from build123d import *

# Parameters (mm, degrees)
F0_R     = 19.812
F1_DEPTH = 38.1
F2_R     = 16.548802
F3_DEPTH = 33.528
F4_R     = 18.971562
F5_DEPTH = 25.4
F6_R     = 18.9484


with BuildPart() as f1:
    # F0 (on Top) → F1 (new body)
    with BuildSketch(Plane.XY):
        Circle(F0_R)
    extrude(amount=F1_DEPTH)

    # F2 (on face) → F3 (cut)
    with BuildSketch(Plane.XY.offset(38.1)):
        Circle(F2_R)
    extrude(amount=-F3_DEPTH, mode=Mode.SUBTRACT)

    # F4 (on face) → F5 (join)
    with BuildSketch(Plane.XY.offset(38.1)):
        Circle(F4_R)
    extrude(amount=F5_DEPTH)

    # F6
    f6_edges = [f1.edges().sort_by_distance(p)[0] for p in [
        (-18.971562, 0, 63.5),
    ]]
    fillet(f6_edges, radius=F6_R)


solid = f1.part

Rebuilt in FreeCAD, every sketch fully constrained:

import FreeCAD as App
import Part
import Sketcher

V = App.Vector
Q = App.Units.Quantity


def edges_at(feature, points):
    """Names of the edges that pass closest to the given points."""
    edges = feature.Shape.Edges
    near = lambda p: min(range(len(edges)), key=lambda i: edges[i].distToShape(Part.Vertex(*p))[0])
    return sorted({f"Edge{near(p) + 1}" for p in points})

doc = App.newDocument("Part")
params = doc.addObject("Spreadsheet::Sheet", "Params")
for row, (alias, value) in enumerate([
    ("sketch1_diameter", "1.56 in"),
    ("pad1_length", "1.5 in"),
    ("pocket1_length", "1.32 in"),
    ("pad2_length", "1 in"),
    ("fillet_radius", "0.746 in"),
], start=1):
    params.set(f"A{row}", alias)
    params.set(f"B{row}", "=" + value)
    params.setAlias(f"B{row}", alias)

body = doc.addObject("PartDesign::Body", "Body")

# Sketch on XY plane
sketch1 = doc.addObject("Sketcher::SketchObject", "Sketch")
body.addObject(sketch1)
sketch1.AttachmentSupport = (doc.XY_Plane, [""])
sketch1.MapMode = "FlatFace"
sketch1.addGeometry(Part.Circle(V(0, 0, 0), V(0, 0, 1), 20), False)
sketch1.addConstraint([
    Sketcher.Constraint("Coincident", 0, 3, -1, 1),
    Sketcher.Constraint("Diameter", 0, Q("1.56 in")),
])
sketch1.setExpression("Constraints[1]", "Params.sketch1_diameter")
pad1 = doc.addObject("PartDesign::Pad", "Pad")
body.addObject(pad1)
pad1.Profile = sketch1
pad1.setExpression("Length", "Params.pad1_length")

# Sketch on XY plane
sketch2 = doc.addObject("Sketcher::SketchObject", "Sketch001")
body.addObject(sketch2)
sketch2.AttachmentSupport = (doc.XY_Plane, [""])
sketch2.MapMode = "FlatFace"
sketch2.AttachmentOffset = App.Placement(V(0, 0, 1.5 * 25.4), App.Rotation())
sketch2.addGeometry(Part.Circle(V(0, 0, 0), V(0, 0, 1), 17), False)
sketch2.addConstraint([
    Sketcher.Constraint("Coincident", 0, 3, -1, 1),
    Sketcher.Constraint("Diameter", 0, Q("33.097604 mm")),
])
pocket1 = doc.addObject("PartDesign::Pocket", "Pocket")
body.addObject(pocket1)
pocket1.Profile = sketch2
pocket1.setExpression("Length", "Params.pocket1_length")

# Sketch on XY plane
sketch3 = doc.addObject("Sketcher::SketchObject", "Sketch002")
body.addObject(sketch3)
sketch3.AttachmentSupport = (doc.XY_Plane, [""])
sketch3.MapMode = "FlatFace"
sketch3.AttachmentOffset = App.Placement(V(0, 0, 1.5 * 25.4), App.Rotation())
sketch3.addGeometry(Part.Circle(V(0, 0, 0), V(0, 0, 1), 19), False)
sketch3.addConstraint([
    Sketcher.Constraint("Coincident", 0, 3, -1, 1),
    Sketcher.Constraint("Diameter", 0, Q("37.943124 mm")),
])
pad2 = doc.addObject("PartDesign::Pad", "Pad001")
body.addObject(pad2)
pad2.Profile = sketch3
pad2.setExpression("Length", "Params.pad2_length")
doc.recompute()

fillet = doc.addObject("PartDesign::Fillet", "Fillet")
body.addObject(fillet)
fillet.Base = (pad2, edges_at(pad2, [(-18.972, 0, 63.5)]))
fillet.setExpression("Radius", "Params.fillet_radius")

doc.recompute()
